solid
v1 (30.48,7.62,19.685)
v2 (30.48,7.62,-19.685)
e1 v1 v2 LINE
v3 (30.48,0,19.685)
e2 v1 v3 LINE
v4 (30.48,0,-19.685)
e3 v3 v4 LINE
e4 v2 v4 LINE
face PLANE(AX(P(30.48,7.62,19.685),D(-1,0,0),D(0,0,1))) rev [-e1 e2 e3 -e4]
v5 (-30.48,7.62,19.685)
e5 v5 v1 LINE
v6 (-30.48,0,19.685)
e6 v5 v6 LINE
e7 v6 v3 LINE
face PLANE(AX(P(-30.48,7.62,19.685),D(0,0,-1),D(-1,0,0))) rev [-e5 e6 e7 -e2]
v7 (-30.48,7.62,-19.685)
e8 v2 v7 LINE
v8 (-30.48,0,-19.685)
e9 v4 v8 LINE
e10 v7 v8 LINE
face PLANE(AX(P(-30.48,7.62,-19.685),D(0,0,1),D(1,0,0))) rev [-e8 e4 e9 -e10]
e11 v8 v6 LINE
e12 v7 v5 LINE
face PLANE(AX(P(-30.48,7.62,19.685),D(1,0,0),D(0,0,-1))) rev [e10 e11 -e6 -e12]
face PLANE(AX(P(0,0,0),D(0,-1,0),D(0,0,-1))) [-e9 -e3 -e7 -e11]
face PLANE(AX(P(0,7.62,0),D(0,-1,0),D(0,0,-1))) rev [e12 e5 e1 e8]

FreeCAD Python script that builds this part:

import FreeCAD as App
import Part
import Sketcher
Q = App.Units.Quantity

doc = App.newDocument("Part")
body = doc.addObject("PartDesign::Body", "Body")

sketch1 = body.newObject("Sketcher::SketchObject", "Sketch")
sketch1.AttachmentSupport = (doc.getObject("XZ_Plane"), [""])
sketch1.MapMode = "FlatFace"
sketch1.addGeometry([
    Part.LineSegment(App.Vector(-30, -20, 0), App.Vector(-30, 20, 0)),
    Part.LineSegment(App.Vector(-30, 20, 0), App.Vector(30, 20, 0)),
    Part.LineSegment(App.Vector(30, 20, 0), App.Vector(30, -20, 0)),
    Part.LineSegment(App.Vector(30, -20, 0), App.Vector(-30, -20, 0)),
], False)
sketch1.addConstraint([
    Sketcher.Constraint("Coincident", 0, 2, 1, 1),
    Sketcher.Constraint("Coincident", 1, 2, 2, 1),
    Sketcher.Constraint("Coincident", 2, 2, 3, 1),
    Sketcher.Constraint("Coincident", 3, 2, 0, 1),
    Sketcher.Constraint("Vertical", 0),
    Sketcher.Constraint("Horizontal", 1),
    Sketcher.Constraint("Vertical", 2),
    Sketcher.Constraint("Horizontal", 3),
    Sketcher.Constraint("Symmetric", 0, 2, 2, 2, -1, 1),
    Sketcher.Constraint("DistanceX", 1, 1, 1, 2, Q("2.4 in")),
    Sketcher.Constraint("DistanceY", 0, 1, 0, 2, Q("1.55 in")),
])
pad1 = body.newObject("PartDesign::Pad", "Pad")
pad1.Profile = sketch1
pad1.Length = Q("0.3 in")
pad1.Reversed = True

doc.recompute()
